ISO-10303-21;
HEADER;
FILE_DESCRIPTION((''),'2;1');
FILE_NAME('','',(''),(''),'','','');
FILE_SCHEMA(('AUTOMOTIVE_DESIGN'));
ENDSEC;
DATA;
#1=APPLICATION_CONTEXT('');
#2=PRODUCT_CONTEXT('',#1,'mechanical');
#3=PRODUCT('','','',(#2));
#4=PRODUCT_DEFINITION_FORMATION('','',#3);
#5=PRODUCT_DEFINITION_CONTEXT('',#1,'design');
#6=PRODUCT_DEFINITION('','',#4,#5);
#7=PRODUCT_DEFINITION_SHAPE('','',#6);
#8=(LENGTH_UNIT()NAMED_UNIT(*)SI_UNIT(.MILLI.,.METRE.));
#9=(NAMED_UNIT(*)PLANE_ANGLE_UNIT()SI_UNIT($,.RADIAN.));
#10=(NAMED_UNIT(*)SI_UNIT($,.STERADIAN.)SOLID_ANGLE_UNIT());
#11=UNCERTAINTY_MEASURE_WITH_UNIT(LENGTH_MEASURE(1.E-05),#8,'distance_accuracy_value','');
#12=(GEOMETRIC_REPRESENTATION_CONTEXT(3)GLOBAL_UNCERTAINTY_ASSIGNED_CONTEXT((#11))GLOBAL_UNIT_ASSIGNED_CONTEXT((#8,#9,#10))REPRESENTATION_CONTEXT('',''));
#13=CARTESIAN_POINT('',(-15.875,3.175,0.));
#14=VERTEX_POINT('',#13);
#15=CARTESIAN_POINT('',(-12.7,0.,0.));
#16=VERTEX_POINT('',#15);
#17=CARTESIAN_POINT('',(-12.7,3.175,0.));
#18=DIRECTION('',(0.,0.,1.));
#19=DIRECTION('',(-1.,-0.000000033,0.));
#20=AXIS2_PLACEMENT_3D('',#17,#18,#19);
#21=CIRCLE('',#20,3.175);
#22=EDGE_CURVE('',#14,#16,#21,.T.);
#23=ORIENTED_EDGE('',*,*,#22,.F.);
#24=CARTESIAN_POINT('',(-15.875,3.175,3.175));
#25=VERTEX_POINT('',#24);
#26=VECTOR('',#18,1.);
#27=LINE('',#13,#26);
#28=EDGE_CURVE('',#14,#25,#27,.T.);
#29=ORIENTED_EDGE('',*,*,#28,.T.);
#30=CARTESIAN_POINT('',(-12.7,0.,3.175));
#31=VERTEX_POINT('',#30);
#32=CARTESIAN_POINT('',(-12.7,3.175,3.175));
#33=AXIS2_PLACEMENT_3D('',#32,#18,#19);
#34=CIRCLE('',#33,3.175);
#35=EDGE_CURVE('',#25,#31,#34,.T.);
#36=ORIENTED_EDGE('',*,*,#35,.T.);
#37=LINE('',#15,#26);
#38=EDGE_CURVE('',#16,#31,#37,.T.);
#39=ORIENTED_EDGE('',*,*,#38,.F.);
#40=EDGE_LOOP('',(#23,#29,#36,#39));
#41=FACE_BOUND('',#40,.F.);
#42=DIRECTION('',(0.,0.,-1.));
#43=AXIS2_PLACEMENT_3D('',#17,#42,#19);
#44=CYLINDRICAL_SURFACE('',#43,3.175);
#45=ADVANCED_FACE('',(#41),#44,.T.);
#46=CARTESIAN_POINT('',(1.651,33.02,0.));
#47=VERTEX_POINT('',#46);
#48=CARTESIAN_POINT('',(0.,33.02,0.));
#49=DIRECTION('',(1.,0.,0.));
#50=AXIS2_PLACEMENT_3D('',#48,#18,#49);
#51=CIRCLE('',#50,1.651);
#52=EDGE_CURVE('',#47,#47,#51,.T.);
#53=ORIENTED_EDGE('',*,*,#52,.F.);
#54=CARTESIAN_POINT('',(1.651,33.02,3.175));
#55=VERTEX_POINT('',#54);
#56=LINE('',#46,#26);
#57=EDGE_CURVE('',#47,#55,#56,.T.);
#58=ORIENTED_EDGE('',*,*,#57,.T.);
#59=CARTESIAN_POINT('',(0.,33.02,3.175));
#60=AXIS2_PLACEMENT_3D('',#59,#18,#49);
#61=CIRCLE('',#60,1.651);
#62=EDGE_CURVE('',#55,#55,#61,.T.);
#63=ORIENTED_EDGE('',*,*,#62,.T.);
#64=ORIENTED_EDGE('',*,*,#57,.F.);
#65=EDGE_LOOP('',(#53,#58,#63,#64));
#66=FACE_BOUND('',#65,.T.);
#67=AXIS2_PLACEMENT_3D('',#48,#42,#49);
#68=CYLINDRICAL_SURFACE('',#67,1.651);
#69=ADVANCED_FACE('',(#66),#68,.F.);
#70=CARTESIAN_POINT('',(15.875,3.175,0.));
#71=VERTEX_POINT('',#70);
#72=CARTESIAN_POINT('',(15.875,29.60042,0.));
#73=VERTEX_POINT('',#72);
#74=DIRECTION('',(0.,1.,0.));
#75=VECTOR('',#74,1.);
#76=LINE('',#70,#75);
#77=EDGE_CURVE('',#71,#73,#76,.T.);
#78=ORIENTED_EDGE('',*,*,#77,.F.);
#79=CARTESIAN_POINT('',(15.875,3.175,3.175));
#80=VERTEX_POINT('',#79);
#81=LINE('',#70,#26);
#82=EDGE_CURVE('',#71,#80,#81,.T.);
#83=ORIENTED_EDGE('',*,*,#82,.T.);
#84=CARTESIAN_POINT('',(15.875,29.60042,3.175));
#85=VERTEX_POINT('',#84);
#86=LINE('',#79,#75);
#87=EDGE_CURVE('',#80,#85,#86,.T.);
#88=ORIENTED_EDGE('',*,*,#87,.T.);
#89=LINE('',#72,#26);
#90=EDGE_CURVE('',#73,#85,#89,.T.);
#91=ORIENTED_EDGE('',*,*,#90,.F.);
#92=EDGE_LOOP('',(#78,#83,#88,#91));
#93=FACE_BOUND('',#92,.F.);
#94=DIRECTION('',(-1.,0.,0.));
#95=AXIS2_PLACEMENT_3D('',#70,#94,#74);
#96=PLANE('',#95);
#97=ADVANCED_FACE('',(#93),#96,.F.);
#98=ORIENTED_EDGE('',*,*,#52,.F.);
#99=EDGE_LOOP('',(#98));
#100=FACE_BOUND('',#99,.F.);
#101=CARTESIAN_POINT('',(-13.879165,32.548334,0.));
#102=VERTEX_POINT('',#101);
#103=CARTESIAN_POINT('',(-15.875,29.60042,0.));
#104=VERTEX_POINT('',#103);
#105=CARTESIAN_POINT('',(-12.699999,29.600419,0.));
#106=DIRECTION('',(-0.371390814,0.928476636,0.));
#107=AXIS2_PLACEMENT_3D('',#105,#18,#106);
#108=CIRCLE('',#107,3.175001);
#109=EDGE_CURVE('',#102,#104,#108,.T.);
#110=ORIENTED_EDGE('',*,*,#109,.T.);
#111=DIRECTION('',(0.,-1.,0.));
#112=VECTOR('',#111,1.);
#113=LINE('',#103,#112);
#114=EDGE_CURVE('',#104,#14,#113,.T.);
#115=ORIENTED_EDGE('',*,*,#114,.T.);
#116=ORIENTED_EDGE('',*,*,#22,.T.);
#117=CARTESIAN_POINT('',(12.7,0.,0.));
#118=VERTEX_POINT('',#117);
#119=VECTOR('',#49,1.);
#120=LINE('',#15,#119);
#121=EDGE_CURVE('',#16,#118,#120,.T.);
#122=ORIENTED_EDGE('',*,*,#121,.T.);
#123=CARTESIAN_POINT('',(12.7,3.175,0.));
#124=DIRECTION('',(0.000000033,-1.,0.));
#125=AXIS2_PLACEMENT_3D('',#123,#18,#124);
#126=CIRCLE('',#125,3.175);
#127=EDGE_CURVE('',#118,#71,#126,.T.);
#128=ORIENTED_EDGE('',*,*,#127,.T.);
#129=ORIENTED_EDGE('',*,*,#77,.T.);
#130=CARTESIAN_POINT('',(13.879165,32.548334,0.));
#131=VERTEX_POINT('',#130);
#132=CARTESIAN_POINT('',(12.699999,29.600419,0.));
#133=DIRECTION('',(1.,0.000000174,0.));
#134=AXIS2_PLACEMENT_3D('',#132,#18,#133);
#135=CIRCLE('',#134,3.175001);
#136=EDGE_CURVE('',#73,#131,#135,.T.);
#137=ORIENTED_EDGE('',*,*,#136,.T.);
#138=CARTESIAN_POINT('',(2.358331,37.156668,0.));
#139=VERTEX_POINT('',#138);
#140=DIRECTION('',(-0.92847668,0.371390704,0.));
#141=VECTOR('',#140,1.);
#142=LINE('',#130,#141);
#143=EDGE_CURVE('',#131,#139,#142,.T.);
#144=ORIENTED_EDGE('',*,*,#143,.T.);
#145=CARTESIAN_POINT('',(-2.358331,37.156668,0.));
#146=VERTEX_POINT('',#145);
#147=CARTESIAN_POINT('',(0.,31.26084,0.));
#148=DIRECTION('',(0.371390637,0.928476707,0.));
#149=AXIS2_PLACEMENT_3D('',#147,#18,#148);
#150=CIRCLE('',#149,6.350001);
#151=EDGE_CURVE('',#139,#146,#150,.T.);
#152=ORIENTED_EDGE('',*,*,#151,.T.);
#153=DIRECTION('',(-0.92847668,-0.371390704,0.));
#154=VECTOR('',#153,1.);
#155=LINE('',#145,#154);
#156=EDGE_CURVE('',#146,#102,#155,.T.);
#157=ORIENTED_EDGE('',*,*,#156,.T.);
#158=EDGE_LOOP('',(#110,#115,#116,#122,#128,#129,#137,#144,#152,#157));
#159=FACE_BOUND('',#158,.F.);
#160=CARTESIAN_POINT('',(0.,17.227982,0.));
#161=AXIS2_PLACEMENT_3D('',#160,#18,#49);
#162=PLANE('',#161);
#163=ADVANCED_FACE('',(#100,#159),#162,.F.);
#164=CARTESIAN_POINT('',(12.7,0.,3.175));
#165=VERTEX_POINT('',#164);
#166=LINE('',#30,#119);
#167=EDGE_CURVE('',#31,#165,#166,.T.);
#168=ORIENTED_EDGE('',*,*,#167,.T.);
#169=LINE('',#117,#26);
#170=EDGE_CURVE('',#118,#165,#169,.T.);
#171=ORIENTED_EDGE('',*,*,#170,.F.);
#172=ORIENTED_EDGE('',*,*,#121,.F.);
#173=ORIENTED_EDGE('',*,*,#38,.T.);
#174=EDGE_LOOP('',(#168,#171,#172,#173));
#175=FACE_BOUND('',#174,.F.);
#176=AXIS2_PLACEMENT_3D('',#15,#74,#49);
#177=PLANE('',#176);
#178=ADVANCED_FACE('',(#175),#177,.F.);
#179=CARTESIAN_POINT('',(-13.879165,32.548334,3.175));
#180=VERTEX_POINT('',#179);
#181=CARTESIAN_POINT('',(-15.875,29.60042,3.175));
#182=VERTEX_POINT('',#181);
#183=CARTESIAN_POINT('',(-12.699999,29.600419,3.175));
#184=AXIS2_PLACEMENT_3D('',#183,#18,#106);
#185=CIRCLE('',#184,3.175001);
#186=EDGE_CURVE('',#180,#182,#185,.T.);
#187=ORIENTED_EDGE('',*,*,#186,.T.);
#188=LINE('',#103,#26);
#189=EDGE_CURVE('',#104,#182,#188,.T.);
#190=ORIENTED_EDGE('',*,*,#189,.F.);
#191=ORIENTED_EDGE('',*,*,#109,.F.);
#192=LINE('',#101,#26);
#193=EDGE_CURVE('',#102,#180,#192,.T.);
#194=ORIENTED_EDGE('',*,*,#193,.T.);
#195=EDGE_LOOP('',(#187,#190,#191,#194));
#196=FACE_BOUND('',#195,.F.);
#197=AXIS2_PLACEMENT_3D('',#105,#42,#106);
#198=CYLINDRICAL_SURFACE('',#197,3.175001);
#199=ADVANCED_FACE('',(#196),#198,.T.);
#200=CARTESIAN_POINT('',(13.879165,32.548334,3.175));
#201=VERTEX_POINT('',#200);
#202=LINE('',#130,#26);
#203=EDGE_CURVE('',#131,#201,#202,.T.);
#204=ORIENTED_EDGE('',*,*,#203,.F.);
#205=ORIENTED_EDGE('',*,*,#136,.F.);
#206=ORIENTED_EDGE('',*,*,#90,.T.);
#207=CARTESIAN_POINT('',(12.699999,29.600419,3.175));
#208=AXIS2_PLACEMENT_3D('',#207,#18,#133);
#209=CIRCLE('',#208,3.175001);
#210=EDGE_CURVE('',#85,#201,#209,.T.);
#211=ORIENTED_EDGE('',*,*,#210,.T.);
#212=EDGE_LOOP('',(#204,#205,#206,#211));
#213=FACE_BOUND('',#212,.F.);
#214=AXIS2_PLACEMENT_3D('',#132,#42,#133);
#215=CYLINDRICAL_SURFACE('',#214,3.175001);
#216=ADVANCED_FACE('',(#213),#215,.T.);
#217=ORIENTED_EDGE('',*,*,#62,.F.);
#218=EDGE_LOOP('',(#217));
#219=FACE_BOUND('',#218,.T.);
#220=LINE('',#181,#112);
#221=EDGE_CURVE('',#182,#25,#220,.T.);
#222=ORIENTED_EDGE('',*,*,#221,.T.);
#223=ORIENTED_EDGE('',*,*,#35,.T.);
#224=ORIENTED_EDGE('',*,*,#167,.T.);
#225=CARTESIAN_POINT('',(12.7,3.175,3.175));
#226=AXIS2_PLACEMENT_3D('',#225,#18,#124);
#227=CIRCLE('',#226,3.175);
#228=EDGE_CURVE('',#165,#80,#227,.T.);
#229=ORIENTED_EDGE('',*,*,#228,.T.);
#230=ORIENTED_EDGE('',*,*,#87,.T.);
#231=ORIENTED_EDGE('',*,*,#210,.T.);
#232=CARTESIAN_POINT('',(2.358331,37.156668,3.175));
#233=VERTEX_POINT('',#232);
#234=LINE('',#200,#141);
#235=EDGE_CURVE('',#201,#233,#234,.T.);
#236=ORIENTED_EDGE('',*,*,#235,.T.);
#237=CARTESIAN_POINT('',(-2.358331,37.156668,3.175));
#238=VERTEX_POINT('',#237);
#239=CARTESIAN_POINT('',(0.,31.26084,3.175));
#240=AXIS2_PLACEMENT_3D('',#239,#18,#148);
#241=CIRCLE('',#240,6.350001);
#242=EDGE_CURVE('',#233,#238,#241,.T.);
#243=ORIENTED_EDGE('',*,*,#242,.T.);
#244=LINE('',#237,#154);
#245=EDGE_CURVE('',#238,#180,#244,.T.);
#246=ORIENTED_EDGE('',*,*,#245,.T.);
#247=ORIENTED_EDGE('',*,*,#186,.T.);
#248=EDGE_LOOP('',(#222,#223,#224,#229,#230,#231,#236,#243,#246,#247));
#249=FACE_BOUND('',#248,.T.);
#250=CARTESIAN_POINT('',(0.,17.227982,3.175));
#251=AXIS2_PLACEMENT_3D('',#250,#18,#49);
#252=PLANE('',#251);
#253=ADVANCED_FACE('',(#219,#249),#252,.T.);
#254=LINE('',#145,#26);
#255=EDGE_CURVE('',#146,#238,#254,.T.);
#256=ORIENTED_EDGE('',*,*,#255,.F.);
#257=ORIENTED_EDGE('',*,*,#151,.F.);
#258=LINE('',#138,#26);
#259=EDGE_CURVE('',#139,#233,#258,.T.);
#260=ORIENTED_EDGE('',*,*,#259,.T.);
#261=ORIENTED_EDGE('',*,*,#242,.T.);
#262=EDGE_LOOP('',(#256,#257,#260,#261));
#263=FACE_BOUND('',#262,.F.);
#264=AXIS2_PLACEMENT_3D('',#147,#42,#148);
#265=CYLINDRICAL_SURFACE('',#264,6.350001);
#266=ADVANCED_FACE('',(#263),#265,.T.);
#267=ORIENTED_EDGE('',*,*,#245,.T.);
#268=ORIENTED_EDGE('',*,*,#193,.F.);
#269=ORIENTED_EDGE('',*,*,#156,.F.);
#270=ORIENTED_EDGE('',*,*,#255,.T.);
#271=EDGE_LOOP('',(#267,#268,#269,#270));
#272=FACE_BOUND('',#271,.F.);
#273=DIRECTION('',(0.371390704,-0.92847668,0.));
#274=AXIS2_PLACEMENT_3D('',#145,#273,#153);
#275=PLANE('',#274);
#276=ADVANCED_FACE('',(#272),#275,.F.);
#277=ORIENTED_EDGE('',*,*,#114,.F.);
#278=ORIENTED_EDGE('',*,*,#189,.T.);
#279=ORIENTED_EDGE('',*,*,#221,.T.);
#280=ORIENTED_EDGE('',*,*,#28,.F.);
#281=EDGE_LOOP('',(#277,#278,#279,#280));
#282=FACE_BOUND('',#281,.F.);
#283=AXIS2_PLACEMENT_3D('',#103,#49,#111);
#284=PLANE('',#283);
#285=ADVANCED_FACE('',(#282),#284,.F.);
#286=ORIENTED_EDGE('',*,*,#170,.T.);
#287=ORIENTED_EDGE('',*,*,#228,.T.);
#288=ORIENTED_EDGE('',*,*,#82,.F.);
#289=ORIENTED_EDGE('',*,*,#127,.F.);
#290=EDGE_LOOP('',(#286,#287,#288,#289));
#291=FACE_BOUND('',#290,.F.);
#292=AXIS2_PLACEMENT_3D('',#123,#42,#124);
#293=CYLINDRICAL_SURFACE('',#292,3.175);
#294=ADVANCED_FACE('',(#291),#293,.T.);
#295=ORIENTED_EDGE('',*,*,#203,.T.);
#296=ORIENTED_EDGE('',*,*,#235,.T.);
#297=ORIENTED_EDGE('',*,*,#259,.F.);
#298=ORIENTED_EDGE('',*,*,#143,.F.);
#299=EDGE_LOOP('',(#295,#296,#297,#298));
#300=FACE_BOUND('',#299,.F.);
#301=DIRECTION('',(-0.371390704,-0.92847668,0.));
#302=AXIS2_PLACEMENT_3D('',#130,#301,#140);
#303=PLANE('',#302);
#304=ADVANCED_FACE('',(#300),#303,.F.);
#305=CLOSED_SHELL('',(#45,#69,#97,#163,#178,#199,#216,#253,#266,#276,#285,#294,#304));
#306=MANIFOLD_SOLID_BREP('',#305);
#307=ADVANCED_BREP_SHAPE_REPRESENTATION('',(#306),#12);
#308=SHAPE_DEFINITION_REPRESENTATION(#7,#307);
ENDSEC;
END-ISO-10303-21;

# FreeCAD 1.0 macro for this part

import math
import FreeCAD as App
import Part
import Sketcher
Q = App.Units.Quantity

doc = App.newDocument("Part")
body = doc.addObject("PartDesign::Body", "Body")

# Sketch on XY plane
sketch1 = body.newObject("Sketcher::SketchObject", "Sketch")
sketch1.AttachmentSupport = (doc.getObject("XY_Plane"), [""])
sketch1.MapMode = "FlatFace"
sketch1.addGeometry([
    Part.ArcOfCircle(Part.Circle(App.Vector(-12.7, 3.175, 0), App.Vector(0, 0, 1), 3.175), math.radians(-179.999998), math.radians(-90.000002)),  # 0
    Part.LineSegment(App.Vector(-12.7, 0, 0), App.Vector(12.7, 0, 0)),  # 1
    Part.ArcOfCircle(Part.Circle(App.Vector(12.7, 3.175, 0), App.Vector(0, 0, 1), 3.175), math.radians(-89.999998), math.radians(-0.000002)),  # 2
    Part.LineSegment(App.Vector(15.875, 3.175, 0), App.Vector(15.875, 29.60042, 0)),  # 3
    Part.ArcOfCircle(Part.Circle(App.Vector(12.699999, 29.600419, 0), App.Vector(0, 0, 1), 3.175001), math.radians(0.00001), math.radians(68.198582)),  # 4
    Part.LineSegment(App.Vector(13.879165, 32.548334, 0), App.Vector(2.358331, 37.156668, 0)),  # 5
    Part.ArcOfCircle(Part.Circle(App.Vector(0, 31.26084, 0), App.Vector(0, 0, 1), 6.350001), math.radians(68.198593), math.radians(111.801407)),  # 6
    Part.LineSegment(App.Vector(-2.358331, 37.156668, 0), App.Vector(-13.879165, 32.548334, 0)),  # 7
    Part.ArcOfCircle(Part.Circle(App.Vector(-12.699999, 29.600419, 0), App.Vector(0, 0, 1), 3.175001), math.radians(111.801418), math.radians(179.99999)),  # 8
    Part.LineSegment(App.Vector(-15.875, 29.60042, 0), App.Vector(-15.875, 3.175, 0)),  # 9
    Part.Circle(App.Vector(0, 33.02, 0), App.Vector(0, 0, 1), 1.651),  # 10
], False)
sketch1.addConstraint([
    Sketcher.Constraint("Tangent", 0, 2, 1, 1),
    Sketcher.Constraint("Tangent", 1, 2, 2, 1),
    Sketcher.Constraint("Tangent", 2, 2, 3, 1),
    Sketcher.Constraint("Tangent", 3, 2, 4, 1),
    Sketcher.Constraint("Tangent", 4, 2, 5, 1),
    Sketcher.Constraint("Tangent", 5, 2, 6, 1),
    Sketcher.Constraint("Tangent", 6, 2, 7, 1),
    Sketcher.Constraint("Tangent", 7, 2, 8, 1),
    Sketcher.Constraint("Tangent", 8, 2, 9, 1),
    Sketcher.Constraint("Tangent", 9, 2, 0, 1),
    Sketcher.Constraint("Horizontal", 1),
    Sketcher.Constraint("Vertical", 3),
    Sketcher.Constraint("Vertical", 9),
    Sketcher.Constraint("Equal", 0, 2),
    Sketcher.Constraint("Equal", 2, 4),
    Sketcher.Constraint("Equal", 4, 8),
    Sketcher.Constraint("Symmetric", 0, 2, 1, 2, -1, 1),
    Sketcher.Constraint("Symmetric", 5, 2, 6, 2, -2),
    Sketcher.Constraint("PointOnObject", 10, 3, -2),
    Sketcher.Constraint("Diameter", 10, Q("0.13 in")),
    Sketcher.Constraint("DistanceX", 1, 1, 1, 2, Q("1 in")),
    Sketcher.Constraint("Radius", 6, Q("0.25 in")),
    Sketcher.Constraint("Radius", 0, Q("0.125 in")),
    Sketcher.Constraint("DistanceY", -1, 1, 10, 3, Q("1.3 in")),
    Sketcher.Constraint("DistanceY", 3, 1, 3, 2, Q("26.42542 mm")),
    Sketcher.Constraint("Distance", 5, Q("12.408318 mm")),
])
pad1 = body.newObject("PartDesign::Pad", "Pad")
pad1.Profile = sketch1
pad1.Length = Q("0.125 in")

doc.recompute()
